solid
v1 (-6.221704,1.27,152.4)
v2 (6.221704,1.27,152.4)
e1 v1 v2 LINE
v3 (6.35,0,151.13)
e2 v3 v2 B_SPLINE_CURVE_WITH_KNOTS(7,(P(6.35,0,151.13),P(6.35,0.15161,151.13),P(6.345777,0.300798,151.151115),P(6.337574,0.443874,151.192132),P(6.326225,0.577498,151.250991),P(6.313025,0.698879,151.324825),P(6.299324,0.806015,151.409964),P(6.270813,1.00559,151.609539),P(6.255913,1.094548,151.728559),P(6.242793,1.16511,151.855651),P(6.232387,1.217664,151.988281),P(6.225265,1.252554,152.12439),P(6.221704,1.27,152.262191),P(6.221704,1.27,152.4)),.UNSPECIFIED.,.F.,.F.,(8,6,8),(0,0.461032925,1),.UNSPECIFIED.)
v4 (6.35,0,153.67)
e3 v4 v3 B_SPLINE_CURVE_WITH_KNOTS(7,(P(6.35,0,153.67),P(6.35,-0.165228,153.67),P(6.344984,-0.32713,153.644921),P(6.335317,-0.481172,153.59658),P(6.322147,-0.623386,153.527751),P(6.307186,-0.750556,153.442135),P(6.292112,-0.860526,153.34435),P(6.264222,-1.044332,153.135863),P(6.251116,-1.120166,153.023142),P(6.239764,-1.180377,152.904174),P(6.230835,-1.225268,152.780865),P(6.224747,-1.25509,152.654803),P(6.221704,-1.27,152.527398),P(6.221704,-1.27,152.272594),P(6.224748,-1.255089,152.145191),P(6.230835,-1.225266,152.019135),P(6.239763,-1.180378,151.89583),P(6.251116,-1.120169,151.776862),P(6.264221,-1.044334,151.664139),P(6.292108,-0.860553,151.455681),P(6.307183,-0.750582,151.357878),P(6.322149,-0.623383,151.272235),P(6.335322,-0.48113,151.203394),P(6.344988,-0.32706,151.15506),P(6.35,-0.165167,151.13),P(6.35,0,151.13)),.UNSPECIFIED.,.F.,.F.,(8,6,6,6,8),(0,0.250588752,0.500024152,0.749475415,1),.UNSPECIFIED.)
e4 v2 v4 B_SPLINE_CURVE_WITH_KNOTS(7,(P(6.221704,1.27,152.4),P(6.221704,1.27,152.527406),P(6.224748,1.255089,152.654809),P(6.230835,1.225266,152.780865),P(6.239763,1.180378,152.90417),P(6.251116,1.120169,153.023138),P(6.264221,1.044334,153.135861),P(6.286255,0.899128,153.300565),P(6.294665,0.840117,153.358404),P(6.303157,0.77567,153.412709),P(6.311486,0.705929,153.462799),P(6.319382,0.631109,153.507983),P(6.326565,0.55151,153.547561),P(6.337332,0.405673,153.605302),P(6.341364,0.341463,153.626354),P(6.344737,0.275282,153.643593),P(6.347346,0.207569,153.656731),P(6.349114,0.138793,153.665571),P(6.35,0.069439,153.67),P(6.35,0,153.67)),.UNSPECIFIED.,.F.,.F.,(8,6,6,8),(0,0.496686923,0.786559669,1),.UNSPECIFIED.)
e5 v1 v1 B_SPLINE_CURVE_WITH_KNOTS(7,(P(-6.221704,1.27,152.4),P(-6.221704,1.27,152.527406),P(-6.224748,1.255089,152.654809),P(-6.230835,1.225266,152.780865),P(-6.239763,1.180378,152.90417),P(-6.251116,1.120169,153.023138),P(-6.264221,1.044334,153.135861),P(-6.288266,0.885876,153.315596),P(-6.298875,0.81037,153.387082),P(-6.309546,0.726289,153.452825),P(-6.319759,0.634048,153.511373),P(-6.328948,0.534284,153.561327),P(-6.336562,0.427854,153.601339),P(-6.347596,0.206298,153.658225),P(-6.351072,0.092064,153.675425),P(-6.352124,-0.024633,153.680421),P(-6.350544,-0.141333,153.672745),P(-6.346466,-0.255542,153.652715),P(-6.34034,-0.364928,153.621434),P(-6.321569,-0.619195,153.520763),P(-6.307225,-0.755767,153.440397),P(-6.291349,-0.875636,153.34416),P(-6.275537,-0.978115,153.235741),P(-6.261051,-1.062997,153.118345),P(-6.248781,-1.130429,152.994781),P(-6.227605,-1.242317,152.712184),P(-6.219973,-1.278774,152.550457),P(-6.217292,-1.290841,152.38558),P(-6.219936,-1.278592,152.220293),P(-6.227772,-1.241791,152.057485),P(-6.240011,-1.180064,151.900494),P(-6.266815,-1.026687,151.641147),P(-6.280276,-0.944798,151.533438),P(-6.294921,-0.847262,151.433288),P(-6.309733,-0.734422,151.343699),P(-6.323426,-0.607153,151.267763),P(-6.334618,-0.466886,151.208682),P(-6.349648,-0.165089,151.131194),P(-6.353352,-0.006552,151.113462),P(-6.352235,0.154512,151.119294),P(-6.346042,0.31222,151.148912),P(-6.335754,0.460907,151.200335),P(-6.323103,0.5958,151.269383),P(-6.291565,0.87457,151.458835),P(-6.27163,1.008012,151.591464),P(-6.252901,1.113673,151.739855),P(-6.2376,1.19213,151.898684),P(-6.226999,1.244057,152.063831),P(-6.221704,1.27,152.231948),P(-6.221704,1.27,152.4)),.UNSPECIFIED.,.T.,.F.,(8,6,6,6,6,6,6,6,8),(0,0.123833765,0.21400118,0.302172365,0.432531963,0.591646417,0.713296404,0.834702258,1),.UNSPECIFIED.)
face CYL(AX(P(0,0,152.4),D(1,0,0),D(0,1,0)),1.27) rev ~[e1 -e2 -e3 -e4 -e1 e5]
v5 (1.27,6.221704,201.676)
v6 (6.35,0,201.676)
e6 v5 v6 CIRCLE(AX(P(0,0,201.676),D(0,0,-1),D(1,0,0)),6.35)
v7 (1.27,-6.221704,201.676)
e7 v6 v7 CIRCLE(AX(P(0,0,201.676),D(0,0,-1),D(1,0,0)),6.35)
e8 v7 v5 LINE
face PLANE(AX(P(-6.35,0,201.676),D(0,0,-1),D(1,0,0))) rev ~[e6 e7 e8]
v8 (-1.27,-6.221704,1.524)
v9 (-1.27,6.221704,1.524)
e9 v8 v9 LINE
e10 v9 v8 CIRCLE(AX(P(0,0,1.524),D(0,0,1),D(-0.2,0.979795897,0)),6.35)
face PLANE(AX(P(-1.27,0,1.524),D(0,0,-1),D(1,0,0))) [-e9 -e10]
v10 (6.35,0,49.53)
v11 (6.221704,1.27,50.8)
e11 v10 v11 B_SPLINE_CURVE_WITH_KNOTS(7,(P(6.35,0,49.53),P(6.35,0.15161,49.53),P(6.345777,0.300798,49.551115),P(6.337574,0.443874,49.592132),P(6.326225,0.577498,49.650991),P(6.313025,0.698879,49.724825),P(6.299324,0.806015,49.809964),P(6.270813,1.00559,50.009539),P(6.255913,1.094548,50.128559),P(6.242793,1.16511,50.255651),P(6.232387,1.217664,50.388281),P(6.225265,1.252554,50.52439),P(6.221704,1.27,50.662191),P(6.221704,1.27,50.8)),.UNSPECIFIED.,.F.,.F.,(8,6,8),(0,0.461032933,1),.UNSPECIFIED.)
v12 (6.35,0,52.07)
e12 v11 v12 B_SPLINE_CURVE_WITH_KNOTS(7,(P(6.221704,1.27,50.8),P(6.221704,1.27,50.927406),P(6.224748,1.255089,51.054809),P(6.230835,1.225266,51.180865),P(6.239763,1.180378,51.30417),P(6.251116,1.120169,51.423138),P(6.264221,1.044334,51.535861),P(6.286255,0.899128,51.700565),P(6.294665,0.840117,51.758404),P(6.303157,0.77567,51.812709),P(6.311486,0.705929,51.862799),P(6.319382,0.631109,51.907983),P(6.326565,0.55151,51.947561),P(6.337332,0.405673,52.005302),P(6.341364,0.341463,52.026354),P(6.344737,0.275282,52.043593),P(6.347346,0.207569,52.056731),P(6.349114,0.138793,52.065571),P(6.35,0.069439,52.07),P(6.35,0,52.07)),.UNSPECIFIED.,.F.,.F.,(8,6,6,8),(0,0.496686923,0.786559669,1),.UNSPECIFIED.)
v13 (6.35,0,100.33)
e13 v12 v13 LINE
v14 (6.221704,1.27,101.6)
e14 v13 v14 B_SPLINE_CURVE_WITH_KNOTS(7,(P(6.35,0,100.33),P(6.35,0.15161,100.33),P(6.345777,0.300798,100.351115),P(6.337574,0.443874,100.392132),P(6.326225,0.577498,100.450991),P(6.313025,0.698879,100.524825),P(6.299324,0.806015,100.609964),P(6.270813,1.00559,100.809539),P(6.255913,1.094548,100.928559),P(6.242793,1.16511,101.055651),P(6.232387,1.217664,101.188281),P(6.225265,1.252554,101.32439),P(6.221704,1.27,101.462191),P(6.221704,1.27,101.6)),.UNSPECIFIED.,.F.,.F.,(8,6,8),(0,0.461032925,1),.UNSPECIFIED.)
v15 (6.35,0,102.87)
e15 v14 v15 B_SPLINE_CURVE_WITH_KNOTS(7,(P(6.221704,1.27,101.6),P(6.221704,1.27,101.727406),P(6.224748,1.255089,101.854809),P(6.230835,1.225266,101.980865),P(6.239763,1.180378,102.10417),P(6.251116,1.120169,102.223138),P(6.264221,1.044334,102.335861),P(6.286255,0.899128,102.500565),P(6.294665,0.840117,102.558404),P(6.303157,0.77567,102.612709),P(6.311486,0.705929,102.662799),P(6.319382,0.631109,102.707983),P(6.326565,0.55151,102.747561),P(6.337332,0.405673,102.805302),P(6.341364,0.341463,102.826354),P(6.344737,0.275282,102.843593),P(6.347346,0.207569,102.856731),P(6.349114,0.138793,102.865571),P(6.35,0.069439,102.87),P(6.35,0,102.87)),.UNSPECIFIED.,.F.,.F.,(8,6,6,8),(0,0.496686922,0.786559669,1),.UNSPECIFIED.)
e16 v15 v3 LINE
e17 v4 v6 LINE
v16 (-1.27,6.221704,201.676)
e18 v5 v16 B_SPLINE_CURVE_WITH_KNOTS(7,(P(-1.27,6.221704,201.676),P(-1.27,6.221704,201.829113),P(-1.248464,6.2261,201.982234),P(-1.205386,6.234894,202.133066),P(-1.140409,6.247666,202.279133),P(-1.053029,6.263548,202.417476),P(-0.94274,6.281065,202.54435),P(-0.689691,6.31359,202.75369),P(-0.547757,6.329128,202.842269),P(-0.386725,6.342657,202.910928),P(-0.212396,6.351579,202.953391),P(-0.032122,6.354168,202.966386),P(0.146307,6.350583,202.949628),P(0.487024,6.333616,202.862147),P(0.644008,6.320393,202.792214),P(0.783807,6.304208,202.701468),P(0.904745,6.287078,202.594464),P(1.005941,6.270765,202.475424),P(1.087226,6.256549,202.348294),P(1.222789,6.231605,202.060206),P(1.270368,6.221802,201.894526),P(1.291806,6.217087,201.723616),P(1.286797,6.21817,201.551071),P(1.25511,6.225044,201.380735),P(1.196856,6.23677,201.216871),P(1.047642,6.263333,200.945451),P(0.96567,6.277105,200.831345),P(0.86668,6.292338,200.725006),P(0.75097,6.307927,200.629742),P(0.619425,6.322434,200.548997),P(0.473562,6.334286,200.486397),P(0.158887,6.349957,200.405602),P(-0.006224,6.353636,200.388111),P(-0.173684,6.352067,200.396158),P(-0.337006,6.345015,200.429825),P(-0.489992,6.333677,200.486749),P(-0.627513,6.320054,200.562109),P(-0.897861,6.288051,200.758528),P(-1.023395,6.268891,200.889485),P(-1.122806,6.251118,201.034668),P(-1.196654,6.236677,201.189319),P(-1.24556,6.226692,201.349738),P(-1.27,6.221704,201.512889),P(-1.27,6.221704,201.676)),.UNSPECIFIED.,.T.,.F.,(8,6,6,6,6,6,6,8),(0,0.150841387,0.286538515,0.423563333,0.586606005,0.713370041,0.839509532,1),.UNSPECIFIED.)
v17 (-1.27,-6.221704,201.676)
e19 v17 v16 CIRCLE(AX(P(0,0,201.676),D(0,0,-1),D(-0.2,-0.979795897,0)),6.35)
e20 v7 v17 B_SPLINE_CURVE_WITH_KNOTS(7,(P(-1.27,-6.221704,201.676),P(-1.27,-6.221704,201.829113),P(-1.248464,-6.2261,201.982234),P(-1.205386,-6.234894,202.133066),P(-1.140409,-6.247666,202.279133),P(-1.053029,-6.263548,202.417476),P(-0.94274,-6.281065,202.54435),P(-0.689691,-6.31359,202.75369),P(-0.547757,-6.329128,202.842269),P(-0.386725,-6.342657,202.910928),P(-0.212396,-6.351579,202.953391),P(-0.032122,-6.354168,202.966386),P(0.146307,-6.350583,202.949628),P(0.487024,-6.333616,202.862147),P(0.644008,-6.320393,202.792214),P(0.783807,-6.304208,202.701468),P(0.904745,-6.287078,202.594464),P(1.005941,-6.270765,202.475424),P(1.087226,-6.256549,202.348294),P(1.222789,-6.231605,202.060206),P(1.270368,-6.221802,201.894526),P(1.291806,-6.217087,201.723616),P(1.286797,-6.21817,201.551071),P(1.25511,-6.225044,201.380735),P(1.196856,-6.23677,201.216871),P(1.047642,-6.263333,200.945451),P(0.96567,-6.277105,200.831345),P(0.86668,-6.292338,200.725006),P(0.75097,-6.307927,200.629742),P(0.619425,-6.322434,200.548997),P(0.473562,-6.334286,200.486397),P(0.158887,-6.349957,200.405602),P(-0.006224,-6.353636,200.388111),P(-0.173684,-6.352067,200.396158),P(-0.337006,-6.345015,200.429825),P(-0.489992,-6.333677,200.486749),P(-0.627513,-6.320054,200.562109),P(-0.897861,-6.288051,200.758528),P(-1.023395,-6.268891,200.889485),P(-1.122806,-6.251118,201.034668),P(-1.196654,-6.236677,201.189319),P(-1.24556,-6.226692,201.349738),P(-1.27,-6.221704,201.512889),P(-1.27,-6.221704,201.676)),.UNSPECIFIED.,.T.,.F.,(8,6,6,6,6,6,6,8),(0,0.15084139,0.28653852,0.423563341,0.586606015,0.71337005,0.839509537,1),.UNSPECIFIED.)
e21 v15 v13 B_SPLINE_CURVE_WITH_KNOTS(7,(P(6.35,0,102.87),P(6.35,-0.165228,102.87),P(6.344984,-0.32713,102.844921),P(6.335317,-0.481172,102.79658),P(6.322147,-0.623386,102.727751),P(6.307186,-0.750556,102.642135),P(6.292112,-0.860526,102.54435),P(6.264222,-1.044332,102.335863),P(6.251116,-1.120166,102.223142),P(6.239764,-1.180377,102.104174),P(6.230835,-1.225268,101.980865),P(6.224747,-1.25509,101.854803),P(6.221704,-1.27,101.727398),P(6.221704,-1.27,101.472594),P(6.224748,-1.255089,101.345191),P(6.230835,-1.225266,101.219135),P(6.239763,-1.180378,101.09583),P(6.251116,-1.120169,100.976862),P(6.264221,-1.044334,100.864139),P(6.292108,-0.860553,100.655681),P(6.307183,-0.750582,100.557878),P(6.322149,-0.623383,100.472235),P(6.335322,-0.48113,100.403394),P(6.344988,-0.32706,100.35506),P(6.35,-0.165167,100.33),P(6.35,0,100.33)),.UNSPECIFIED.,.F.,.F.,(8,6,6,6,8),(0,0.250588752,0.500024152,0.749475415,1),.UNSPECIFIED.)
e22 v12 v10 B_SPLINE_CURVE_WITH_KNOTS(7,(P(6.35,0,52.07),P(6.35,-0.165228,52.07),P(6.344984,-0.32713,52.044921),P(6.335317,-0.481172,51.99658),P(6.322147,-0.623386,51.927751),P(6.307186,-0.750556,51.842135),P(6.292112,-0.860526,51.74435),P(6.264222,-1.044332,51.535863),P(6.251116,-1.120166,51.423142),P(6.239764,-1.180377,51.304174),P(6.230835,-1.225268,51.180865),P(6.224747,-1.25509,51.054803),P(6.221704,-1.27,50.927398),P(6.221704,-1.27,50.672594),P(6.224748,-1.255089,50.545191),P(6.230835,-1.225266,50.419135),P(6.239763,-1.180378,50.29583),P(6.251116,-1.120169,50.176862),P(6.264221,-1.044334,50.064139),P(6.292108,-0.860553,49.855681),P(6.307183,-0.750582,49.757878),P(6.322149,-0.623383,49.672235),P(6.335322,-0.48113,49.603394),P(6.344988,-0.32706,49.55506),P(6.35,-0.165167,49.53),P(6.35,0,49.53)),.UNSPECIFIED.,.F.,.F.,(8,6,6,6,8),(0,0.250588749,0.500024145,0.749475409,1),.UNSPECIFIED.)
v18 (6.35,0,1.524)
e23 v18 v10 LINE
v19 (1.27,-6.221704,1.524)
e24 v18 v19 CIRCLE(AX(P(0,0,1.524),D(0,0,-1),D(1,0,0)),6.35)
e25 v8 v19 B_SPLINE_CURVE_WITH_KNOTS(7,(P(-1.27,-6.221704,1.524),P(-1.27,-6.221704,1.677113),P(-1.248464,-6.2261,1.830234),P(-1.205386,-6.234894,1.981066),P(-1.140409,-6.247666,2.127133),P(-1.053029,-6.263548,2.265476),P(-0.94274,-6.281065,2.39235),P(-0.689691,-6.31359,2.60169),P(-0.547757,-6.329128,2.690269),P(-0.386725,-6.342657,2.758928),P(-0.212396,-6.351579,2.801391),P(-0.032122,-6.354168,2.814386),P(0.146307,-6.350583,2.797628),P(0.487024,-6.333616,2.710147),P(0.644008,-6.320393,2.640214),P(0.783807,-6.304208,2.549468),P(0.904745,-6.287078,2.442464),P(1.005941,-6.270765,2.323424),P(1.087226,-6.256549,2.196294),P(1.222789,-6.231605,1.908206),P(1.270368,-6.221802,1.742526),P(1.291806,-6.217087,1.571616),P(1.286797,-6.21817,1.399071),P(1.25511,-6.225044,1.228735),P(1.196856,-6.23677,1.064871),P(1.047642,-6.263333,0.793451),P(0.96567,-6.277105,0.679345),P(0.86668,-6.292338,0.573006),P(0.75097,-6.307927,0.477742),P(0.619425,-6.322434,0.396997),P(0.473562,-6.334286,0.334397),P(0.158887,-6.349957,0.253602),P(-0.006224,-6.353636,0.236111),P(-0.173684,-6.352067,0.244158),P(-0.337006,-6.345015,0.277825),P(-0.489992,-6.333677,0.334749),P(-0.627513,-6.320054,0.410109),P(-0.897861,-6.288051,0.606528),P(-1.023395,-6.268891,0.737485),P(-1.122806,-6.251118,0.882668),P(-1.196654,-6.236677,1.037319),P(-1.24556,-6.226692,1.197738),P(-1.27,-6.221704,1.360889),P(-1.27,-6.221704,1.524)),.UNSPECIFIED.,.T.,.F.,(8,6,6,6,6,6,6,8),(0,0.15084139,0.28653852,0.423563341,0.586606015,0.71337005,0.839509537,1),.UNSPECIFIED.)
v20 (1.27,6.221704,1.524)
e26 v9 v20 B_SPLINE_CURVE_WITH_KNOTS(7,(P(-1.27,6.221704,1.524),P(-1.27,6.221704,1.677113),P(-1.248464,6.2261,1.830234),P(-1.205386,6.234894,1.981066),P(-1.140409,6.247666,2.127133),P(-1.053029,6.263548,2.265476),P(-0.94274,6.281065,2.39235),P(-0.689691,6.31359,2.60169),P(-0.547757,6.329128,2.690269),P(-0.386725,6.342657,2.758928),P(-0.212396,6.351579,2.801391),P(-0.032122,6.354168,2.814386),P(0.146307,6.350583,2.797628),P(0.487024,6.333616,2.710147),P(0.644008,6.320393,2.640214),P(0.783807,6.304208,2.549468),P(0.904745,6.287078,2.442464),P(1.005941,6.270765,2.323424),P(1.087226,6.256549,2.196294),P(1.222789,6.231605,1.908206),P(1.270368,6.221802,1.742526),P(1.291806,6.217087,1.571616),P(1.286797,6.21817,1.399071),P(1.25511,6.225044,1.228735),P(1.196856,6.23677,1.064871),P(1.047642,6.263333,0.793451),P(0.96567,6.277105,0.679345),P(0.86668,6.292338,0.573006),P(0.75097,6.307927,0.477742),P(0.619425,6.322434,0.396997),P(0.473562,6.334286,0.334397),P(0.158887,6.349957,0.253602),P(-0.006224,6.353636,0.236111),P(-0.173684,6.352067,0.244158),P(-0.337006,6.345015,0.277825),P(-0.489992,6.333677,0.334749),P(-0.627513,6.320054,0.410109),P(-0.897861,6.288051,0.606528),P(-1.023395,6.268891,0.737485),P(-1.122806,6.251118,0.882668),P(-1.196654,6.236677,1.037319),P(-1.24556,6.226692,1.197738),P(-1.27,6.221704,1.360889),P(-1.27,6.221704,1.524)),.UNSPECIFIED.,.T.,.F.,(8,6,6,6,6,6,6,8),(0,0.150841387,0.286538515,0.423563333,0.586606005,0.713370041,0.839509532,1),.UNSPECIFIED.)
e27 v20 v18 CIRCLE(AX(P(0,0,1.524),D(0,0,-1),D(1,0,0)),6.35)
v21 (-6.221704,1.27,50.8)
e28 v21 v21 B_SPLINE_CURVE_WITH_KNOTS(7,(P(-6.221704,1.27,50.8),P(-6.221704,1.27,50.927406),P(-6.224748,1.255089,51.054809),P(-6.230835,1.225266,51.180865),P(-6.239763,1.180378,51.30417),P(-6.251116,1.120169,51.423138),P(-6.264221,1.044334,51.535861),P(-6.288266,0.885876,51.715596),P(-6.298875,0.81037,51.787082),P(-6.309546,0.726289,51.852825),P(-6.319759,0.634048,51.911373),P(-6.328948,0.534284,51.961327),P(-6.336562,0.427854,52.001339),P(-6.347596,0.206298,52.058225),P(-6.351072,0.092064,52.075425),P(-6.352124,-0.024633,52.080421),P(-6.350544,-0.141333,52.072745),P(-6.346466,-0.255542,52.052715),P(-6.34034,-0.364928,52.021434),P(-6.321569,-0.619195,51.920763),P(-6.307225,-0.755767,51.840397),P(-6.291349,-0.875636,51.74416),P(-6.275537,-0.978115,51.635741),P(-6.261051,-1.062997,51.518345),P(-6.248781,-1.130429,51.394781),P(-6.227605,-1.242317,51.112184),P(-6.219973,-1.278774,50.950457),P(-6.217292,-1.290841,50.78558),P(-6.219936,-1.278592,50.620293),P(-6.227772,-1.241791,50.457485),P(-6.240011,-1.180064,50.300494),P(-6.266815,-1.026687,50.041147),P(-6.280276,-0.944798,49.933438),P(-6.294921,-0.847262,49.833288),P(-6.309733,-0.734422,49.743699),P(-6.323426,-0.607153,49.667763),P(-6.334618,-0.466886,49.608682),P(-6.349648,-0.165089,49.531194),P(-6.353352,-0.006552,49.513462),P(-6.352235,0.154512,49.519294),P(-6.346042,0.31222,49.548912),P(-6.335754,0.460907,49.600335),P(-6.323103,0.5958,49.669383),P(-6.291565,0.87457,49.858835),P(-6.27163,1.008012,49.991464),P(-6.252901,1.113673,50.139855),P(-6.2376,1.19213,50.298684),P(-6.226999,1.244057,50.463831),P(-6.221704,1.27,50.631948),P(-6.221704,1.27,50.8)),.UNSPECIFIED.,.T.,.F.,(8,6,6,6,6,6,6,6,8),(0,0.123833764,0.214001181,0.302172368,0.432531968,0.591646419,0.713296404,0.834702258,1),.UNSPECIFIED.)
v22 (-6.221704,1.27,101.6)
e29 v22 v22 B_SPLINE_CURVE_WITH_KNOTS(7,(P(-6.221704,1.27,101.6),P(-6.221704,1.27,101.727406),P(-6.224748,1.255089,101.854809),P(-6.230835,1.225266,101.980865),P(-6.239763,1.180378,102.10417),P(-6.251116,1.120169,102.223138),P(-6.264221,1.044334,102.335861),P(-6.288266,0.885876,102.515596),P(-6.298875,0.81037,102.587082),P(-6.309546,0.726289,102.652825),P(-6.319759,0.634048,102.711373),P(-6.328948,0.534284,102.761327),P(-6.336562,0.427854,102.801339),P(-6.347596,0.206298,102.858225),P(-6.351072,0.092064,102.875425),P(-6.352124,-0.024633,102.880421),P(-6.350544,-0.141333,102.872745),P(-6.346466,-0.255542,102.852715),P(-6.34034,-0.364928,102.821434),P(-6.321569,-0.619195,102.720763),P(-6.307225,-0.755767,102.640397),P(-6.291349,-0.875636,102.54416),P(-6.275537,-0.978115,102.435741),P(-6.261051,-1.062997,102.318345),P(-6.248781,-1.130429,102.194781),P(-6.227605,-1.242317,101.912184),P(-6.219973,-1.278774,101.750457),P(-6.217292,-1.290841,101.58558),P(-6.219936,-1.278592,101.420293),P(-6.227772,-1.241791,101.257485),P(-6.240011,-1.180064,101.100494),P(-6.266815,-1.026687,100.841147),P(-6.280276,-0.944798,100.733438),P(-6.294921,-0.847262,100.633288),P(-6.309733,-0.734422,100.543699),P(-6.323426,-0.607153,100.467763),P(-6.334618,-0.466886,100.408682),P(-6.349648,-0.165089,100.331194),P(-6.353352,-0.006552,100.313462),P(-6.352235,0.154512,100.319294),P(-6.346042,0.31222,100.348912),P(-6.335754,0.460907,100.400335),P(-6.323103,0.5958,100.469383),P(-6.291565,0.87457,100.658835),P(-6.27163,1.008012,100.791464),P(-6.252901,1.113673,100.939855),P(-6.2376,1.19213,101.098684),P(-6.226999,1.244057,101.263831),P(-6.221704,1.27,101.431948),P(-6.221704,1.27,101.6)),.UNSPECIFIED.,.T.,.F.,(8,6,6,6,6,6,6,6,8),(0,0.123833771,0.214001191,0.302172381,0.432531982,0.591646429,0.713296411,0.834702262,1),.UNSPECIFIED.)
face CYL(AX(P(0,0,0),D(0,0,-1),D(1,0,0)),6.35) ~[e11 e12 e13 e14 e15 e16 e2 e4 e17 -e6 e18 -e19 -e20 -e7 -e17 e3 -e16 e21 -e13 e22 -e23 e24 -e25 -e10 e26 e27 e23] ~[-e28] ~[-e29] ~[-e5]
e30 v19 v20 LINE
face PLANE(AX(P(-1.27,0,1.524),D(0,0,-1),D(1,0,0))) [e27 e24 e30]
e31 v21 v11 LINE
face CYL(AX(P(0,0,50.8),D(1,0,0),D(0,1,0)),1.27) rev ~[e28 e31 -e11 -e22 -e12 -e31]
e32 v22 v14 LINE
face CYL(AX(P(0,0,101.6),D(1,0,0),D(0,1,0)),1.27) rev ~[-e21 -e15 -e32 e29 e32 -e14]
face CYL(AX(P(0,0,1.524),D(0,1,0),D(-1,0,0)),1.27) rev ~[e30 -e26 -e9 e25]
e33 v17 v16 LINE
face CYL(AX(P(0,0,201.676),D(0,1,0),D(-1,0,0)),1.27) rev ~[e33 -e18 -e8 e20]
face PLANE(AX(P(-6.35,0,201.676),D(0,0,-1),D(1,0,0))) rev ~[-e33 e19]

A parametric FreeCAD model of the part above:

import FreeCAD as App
import Part
import Sketcher

V = App.Vector
Q = App.Units.Quantity


def add_polygon(sketch, points):
    """Adds a closed chain of lines whose ends are joined by coincident constraints."""
    first, n = sketch.GeometryCount, len(points)
    for a, b in zip(points, points[1:] + points[:1]):
        sketch.addGeometry(Part.LineSegment(App.Vector(*a, 0), App.Vector(*b, 0)), False)
    for i in range(n):
        sketch.addConstraint(Sketcher.Constraint("Coincident", first + i, 2, first + (i + 1) % n, 1))

doc = App.newDocument("Part")
body = doc.addObject("PartDesign::Body", "Body")

# Sketch on XY plane
sketch1 = body.newObject("Sketcher::SketchObject", "Sketch")
sketch1.AttachmentSupport = (doc.getObject("XY_Plane"), [""])
sketch1.MapMode = "FlatFace"
sketch1.addGeometry(Part.Circle(V(0, 0, 0), V(0, 0, 1), 6), False)
sketch1.addConstraint(Sketcher.Constraint("Coincident", 0, 3, -1, 1))
sketch1.addConstraint(Sketcher.Constraint("Diameter", 0, Q("0.5 in")))
pad1 = body.newObject("PartDesign::Pad", "Pad")
pad1.Profile = sketch1
pad1.Length = Q("8 in")

# Sketch on XZ plane
sketch2 = body.newObject("Sketcher::SketchObject", "Sketch001")
sketch2.AttachmentSupport = (doc.getObject("XZ_Plane"), [""])
sketch2.MapMode = "FlatFace"
sketch2.addGeometry(Part.Circle(V(0, 201.7, 0), V(0, 0, 1), 1.3), False)
sketch2.addGeometry(Part.Circle(V(0, 1.5, 0), V(0, 0, 1), 1.3), False)
sketch2.addConstraint(Sketcher.Constraint("Equal", 0, 1))
sketch2.addConstraint(Sketcher.Constraint("PointOnObject", 0, 3, -2))
sketch2.addConstraint(Sketcher.Constraint("PointOnObject", 1, 3, -2))
sketch2.addConstraint(Sketcher.Constraint("Diameter", 0, Q("0.1 in")))
sketch2.addConstraint(Sketcher.Constraint("DistanceY", -1, 1, 1, 3, Q("0.06 in")))
sketch2.addConstraint(Sketcher.Constraint("DistanceY", -1, 1, 0, 3, Q("7.94 in")))
pocket1 = body.newObject("PartDesign::Pocket", "Pocket")
pocket1.Profile = sketch2
pocket1.Length = Q("0.6 in")
pocket1.Midplane = True

# Sketch on XZ plane
sketch3 = body.newObject("Sketcher::SketchObject", "Sketch002")
sketch3.AttachmentSupport = (doc.getObject("XZ_Plane"), [""])
sketch3.MapMode = "FlatFace"
add_polygon(sketch3, [(-6.3, 1.5), (6.3, 1.5), (6.3, 0), (-6.3, 0)])  # lines 0-3
add_polygon(sketch3, [(6.3, 201.7), (-6.3, 201.7), (-6.3, 203.2), (6.3, 203.2)])  # lines 4-7
sketch3.addConstraint(Sketcher.Constraint("Horizontal", 0))
sketch3.addConstraint(Sketcher.Constraint("Vertical", 1))
sketch3.addConstraint(Sketcher.Constraint("Horizontal", 2))
sketch3.addConstraint(Sketcher.Constraint("Vertical", 3))
sketch3.addConstraint(Sketcher.Constraint("Horizontal", 4))
sketch3.addConstraint(Sketcher.Constraint("Vertical", 5))
sketch3.addConstraint(Sketcher.Constraint("Horizontal", 6))
sketch3.addConstraint(Sketcher.Constraint("Vertical", 7))
sketch3.addConstraint(Sketcher.Constraint("Symmetric", 1, 2, 2, 2, -1, 1))
sketch3.addConstraint(Sketcher.Constraint("Vertical", 3, 2, 4, 2))
sketch3.addConstraint(Sketcher.Constraint("Vertical", 1, 2, 6, 2))
sketch3.addConstraint(Sketcher.Constraint("Equal", 3, 5))
sketch3.addConstraint(Sketcher.Constraint("DistanceX", 0, 1, 0, 2, Q("0.5 in")))
sketch3.addConstraint(Sketcher.Constraint("DistanceY", 1, 2, 1, 1, Q("0.06 in")))
sketch3.addConstraint(Sketcher.Constraint("DistanceY", -1, 1, 5, 2, Q("8 in")))
pocket2 = body.newObject("PartDesign::Pocket", "Pocket001")
pocket2.Profile = sketch3
pocket2.Length = Q("1 in")
pocket2.Midplane = True

# Sketch on YZ plane
sketch4 = body.newObject("Sketcher::SketchObject", "Sketch003")
sketch4.AttachmentSupport = (doc.getObject("YZ_Plane"), [""])
sketch4.MapMode = "FlatFace"
sketch4.addGeometry(Part.Circle(V(0, 50.8, 0), V(0, 0, 1), 1.3), False)
sketch4.addGeometry(Part.Circle(V(0, 152.4, 0), V(0, 0, 1), 1.3), False)
sketch4.addGeometry(Part.Circle(V(0, 101.6, 0), V(0, 0, 1), 1.3), False)
sketch4.addConstraint(Sketcher.Constraint("Equal", 0, 1))
sketch4.addConstraint(Sketcher.Constraint("Equal", 1, 2))
sketch4.addConstraint(Sketcher.Constraint("PointOnObject", 0, 3, -2))
sketch4.addConstraint(Sketcher.Constraint("PointOnObject", 1, 3, -2))
sketch4.addConstraint(Sketcher.Constraint("PointOnObject", 2, 3, -2))
sketch4.addConstraint(Sketcher.Constraint("Diameter", 0, Q("0.1 in")))
sketch4.addConstraint(Sketcher.Constraint("DistanceY", -1, 1, 0, 3, Q("2 in")))
sketch4.addConstraint(Sketcher.Constraint("DistanceY", 0, 3, 2, 3, Q("2 in")))
sketch4.addConstraint(Sketcher.Constraint("DistanceY", 2, 3, 1, 3, Q("2 in")))
pocket3 = body.newObject("PartDesign::Pocket", "Pocket002")
pocket3.Profile = sketch4
pocket3.Length = Q("1 in")
pocket3.Midplane = True

doc.recompute()
